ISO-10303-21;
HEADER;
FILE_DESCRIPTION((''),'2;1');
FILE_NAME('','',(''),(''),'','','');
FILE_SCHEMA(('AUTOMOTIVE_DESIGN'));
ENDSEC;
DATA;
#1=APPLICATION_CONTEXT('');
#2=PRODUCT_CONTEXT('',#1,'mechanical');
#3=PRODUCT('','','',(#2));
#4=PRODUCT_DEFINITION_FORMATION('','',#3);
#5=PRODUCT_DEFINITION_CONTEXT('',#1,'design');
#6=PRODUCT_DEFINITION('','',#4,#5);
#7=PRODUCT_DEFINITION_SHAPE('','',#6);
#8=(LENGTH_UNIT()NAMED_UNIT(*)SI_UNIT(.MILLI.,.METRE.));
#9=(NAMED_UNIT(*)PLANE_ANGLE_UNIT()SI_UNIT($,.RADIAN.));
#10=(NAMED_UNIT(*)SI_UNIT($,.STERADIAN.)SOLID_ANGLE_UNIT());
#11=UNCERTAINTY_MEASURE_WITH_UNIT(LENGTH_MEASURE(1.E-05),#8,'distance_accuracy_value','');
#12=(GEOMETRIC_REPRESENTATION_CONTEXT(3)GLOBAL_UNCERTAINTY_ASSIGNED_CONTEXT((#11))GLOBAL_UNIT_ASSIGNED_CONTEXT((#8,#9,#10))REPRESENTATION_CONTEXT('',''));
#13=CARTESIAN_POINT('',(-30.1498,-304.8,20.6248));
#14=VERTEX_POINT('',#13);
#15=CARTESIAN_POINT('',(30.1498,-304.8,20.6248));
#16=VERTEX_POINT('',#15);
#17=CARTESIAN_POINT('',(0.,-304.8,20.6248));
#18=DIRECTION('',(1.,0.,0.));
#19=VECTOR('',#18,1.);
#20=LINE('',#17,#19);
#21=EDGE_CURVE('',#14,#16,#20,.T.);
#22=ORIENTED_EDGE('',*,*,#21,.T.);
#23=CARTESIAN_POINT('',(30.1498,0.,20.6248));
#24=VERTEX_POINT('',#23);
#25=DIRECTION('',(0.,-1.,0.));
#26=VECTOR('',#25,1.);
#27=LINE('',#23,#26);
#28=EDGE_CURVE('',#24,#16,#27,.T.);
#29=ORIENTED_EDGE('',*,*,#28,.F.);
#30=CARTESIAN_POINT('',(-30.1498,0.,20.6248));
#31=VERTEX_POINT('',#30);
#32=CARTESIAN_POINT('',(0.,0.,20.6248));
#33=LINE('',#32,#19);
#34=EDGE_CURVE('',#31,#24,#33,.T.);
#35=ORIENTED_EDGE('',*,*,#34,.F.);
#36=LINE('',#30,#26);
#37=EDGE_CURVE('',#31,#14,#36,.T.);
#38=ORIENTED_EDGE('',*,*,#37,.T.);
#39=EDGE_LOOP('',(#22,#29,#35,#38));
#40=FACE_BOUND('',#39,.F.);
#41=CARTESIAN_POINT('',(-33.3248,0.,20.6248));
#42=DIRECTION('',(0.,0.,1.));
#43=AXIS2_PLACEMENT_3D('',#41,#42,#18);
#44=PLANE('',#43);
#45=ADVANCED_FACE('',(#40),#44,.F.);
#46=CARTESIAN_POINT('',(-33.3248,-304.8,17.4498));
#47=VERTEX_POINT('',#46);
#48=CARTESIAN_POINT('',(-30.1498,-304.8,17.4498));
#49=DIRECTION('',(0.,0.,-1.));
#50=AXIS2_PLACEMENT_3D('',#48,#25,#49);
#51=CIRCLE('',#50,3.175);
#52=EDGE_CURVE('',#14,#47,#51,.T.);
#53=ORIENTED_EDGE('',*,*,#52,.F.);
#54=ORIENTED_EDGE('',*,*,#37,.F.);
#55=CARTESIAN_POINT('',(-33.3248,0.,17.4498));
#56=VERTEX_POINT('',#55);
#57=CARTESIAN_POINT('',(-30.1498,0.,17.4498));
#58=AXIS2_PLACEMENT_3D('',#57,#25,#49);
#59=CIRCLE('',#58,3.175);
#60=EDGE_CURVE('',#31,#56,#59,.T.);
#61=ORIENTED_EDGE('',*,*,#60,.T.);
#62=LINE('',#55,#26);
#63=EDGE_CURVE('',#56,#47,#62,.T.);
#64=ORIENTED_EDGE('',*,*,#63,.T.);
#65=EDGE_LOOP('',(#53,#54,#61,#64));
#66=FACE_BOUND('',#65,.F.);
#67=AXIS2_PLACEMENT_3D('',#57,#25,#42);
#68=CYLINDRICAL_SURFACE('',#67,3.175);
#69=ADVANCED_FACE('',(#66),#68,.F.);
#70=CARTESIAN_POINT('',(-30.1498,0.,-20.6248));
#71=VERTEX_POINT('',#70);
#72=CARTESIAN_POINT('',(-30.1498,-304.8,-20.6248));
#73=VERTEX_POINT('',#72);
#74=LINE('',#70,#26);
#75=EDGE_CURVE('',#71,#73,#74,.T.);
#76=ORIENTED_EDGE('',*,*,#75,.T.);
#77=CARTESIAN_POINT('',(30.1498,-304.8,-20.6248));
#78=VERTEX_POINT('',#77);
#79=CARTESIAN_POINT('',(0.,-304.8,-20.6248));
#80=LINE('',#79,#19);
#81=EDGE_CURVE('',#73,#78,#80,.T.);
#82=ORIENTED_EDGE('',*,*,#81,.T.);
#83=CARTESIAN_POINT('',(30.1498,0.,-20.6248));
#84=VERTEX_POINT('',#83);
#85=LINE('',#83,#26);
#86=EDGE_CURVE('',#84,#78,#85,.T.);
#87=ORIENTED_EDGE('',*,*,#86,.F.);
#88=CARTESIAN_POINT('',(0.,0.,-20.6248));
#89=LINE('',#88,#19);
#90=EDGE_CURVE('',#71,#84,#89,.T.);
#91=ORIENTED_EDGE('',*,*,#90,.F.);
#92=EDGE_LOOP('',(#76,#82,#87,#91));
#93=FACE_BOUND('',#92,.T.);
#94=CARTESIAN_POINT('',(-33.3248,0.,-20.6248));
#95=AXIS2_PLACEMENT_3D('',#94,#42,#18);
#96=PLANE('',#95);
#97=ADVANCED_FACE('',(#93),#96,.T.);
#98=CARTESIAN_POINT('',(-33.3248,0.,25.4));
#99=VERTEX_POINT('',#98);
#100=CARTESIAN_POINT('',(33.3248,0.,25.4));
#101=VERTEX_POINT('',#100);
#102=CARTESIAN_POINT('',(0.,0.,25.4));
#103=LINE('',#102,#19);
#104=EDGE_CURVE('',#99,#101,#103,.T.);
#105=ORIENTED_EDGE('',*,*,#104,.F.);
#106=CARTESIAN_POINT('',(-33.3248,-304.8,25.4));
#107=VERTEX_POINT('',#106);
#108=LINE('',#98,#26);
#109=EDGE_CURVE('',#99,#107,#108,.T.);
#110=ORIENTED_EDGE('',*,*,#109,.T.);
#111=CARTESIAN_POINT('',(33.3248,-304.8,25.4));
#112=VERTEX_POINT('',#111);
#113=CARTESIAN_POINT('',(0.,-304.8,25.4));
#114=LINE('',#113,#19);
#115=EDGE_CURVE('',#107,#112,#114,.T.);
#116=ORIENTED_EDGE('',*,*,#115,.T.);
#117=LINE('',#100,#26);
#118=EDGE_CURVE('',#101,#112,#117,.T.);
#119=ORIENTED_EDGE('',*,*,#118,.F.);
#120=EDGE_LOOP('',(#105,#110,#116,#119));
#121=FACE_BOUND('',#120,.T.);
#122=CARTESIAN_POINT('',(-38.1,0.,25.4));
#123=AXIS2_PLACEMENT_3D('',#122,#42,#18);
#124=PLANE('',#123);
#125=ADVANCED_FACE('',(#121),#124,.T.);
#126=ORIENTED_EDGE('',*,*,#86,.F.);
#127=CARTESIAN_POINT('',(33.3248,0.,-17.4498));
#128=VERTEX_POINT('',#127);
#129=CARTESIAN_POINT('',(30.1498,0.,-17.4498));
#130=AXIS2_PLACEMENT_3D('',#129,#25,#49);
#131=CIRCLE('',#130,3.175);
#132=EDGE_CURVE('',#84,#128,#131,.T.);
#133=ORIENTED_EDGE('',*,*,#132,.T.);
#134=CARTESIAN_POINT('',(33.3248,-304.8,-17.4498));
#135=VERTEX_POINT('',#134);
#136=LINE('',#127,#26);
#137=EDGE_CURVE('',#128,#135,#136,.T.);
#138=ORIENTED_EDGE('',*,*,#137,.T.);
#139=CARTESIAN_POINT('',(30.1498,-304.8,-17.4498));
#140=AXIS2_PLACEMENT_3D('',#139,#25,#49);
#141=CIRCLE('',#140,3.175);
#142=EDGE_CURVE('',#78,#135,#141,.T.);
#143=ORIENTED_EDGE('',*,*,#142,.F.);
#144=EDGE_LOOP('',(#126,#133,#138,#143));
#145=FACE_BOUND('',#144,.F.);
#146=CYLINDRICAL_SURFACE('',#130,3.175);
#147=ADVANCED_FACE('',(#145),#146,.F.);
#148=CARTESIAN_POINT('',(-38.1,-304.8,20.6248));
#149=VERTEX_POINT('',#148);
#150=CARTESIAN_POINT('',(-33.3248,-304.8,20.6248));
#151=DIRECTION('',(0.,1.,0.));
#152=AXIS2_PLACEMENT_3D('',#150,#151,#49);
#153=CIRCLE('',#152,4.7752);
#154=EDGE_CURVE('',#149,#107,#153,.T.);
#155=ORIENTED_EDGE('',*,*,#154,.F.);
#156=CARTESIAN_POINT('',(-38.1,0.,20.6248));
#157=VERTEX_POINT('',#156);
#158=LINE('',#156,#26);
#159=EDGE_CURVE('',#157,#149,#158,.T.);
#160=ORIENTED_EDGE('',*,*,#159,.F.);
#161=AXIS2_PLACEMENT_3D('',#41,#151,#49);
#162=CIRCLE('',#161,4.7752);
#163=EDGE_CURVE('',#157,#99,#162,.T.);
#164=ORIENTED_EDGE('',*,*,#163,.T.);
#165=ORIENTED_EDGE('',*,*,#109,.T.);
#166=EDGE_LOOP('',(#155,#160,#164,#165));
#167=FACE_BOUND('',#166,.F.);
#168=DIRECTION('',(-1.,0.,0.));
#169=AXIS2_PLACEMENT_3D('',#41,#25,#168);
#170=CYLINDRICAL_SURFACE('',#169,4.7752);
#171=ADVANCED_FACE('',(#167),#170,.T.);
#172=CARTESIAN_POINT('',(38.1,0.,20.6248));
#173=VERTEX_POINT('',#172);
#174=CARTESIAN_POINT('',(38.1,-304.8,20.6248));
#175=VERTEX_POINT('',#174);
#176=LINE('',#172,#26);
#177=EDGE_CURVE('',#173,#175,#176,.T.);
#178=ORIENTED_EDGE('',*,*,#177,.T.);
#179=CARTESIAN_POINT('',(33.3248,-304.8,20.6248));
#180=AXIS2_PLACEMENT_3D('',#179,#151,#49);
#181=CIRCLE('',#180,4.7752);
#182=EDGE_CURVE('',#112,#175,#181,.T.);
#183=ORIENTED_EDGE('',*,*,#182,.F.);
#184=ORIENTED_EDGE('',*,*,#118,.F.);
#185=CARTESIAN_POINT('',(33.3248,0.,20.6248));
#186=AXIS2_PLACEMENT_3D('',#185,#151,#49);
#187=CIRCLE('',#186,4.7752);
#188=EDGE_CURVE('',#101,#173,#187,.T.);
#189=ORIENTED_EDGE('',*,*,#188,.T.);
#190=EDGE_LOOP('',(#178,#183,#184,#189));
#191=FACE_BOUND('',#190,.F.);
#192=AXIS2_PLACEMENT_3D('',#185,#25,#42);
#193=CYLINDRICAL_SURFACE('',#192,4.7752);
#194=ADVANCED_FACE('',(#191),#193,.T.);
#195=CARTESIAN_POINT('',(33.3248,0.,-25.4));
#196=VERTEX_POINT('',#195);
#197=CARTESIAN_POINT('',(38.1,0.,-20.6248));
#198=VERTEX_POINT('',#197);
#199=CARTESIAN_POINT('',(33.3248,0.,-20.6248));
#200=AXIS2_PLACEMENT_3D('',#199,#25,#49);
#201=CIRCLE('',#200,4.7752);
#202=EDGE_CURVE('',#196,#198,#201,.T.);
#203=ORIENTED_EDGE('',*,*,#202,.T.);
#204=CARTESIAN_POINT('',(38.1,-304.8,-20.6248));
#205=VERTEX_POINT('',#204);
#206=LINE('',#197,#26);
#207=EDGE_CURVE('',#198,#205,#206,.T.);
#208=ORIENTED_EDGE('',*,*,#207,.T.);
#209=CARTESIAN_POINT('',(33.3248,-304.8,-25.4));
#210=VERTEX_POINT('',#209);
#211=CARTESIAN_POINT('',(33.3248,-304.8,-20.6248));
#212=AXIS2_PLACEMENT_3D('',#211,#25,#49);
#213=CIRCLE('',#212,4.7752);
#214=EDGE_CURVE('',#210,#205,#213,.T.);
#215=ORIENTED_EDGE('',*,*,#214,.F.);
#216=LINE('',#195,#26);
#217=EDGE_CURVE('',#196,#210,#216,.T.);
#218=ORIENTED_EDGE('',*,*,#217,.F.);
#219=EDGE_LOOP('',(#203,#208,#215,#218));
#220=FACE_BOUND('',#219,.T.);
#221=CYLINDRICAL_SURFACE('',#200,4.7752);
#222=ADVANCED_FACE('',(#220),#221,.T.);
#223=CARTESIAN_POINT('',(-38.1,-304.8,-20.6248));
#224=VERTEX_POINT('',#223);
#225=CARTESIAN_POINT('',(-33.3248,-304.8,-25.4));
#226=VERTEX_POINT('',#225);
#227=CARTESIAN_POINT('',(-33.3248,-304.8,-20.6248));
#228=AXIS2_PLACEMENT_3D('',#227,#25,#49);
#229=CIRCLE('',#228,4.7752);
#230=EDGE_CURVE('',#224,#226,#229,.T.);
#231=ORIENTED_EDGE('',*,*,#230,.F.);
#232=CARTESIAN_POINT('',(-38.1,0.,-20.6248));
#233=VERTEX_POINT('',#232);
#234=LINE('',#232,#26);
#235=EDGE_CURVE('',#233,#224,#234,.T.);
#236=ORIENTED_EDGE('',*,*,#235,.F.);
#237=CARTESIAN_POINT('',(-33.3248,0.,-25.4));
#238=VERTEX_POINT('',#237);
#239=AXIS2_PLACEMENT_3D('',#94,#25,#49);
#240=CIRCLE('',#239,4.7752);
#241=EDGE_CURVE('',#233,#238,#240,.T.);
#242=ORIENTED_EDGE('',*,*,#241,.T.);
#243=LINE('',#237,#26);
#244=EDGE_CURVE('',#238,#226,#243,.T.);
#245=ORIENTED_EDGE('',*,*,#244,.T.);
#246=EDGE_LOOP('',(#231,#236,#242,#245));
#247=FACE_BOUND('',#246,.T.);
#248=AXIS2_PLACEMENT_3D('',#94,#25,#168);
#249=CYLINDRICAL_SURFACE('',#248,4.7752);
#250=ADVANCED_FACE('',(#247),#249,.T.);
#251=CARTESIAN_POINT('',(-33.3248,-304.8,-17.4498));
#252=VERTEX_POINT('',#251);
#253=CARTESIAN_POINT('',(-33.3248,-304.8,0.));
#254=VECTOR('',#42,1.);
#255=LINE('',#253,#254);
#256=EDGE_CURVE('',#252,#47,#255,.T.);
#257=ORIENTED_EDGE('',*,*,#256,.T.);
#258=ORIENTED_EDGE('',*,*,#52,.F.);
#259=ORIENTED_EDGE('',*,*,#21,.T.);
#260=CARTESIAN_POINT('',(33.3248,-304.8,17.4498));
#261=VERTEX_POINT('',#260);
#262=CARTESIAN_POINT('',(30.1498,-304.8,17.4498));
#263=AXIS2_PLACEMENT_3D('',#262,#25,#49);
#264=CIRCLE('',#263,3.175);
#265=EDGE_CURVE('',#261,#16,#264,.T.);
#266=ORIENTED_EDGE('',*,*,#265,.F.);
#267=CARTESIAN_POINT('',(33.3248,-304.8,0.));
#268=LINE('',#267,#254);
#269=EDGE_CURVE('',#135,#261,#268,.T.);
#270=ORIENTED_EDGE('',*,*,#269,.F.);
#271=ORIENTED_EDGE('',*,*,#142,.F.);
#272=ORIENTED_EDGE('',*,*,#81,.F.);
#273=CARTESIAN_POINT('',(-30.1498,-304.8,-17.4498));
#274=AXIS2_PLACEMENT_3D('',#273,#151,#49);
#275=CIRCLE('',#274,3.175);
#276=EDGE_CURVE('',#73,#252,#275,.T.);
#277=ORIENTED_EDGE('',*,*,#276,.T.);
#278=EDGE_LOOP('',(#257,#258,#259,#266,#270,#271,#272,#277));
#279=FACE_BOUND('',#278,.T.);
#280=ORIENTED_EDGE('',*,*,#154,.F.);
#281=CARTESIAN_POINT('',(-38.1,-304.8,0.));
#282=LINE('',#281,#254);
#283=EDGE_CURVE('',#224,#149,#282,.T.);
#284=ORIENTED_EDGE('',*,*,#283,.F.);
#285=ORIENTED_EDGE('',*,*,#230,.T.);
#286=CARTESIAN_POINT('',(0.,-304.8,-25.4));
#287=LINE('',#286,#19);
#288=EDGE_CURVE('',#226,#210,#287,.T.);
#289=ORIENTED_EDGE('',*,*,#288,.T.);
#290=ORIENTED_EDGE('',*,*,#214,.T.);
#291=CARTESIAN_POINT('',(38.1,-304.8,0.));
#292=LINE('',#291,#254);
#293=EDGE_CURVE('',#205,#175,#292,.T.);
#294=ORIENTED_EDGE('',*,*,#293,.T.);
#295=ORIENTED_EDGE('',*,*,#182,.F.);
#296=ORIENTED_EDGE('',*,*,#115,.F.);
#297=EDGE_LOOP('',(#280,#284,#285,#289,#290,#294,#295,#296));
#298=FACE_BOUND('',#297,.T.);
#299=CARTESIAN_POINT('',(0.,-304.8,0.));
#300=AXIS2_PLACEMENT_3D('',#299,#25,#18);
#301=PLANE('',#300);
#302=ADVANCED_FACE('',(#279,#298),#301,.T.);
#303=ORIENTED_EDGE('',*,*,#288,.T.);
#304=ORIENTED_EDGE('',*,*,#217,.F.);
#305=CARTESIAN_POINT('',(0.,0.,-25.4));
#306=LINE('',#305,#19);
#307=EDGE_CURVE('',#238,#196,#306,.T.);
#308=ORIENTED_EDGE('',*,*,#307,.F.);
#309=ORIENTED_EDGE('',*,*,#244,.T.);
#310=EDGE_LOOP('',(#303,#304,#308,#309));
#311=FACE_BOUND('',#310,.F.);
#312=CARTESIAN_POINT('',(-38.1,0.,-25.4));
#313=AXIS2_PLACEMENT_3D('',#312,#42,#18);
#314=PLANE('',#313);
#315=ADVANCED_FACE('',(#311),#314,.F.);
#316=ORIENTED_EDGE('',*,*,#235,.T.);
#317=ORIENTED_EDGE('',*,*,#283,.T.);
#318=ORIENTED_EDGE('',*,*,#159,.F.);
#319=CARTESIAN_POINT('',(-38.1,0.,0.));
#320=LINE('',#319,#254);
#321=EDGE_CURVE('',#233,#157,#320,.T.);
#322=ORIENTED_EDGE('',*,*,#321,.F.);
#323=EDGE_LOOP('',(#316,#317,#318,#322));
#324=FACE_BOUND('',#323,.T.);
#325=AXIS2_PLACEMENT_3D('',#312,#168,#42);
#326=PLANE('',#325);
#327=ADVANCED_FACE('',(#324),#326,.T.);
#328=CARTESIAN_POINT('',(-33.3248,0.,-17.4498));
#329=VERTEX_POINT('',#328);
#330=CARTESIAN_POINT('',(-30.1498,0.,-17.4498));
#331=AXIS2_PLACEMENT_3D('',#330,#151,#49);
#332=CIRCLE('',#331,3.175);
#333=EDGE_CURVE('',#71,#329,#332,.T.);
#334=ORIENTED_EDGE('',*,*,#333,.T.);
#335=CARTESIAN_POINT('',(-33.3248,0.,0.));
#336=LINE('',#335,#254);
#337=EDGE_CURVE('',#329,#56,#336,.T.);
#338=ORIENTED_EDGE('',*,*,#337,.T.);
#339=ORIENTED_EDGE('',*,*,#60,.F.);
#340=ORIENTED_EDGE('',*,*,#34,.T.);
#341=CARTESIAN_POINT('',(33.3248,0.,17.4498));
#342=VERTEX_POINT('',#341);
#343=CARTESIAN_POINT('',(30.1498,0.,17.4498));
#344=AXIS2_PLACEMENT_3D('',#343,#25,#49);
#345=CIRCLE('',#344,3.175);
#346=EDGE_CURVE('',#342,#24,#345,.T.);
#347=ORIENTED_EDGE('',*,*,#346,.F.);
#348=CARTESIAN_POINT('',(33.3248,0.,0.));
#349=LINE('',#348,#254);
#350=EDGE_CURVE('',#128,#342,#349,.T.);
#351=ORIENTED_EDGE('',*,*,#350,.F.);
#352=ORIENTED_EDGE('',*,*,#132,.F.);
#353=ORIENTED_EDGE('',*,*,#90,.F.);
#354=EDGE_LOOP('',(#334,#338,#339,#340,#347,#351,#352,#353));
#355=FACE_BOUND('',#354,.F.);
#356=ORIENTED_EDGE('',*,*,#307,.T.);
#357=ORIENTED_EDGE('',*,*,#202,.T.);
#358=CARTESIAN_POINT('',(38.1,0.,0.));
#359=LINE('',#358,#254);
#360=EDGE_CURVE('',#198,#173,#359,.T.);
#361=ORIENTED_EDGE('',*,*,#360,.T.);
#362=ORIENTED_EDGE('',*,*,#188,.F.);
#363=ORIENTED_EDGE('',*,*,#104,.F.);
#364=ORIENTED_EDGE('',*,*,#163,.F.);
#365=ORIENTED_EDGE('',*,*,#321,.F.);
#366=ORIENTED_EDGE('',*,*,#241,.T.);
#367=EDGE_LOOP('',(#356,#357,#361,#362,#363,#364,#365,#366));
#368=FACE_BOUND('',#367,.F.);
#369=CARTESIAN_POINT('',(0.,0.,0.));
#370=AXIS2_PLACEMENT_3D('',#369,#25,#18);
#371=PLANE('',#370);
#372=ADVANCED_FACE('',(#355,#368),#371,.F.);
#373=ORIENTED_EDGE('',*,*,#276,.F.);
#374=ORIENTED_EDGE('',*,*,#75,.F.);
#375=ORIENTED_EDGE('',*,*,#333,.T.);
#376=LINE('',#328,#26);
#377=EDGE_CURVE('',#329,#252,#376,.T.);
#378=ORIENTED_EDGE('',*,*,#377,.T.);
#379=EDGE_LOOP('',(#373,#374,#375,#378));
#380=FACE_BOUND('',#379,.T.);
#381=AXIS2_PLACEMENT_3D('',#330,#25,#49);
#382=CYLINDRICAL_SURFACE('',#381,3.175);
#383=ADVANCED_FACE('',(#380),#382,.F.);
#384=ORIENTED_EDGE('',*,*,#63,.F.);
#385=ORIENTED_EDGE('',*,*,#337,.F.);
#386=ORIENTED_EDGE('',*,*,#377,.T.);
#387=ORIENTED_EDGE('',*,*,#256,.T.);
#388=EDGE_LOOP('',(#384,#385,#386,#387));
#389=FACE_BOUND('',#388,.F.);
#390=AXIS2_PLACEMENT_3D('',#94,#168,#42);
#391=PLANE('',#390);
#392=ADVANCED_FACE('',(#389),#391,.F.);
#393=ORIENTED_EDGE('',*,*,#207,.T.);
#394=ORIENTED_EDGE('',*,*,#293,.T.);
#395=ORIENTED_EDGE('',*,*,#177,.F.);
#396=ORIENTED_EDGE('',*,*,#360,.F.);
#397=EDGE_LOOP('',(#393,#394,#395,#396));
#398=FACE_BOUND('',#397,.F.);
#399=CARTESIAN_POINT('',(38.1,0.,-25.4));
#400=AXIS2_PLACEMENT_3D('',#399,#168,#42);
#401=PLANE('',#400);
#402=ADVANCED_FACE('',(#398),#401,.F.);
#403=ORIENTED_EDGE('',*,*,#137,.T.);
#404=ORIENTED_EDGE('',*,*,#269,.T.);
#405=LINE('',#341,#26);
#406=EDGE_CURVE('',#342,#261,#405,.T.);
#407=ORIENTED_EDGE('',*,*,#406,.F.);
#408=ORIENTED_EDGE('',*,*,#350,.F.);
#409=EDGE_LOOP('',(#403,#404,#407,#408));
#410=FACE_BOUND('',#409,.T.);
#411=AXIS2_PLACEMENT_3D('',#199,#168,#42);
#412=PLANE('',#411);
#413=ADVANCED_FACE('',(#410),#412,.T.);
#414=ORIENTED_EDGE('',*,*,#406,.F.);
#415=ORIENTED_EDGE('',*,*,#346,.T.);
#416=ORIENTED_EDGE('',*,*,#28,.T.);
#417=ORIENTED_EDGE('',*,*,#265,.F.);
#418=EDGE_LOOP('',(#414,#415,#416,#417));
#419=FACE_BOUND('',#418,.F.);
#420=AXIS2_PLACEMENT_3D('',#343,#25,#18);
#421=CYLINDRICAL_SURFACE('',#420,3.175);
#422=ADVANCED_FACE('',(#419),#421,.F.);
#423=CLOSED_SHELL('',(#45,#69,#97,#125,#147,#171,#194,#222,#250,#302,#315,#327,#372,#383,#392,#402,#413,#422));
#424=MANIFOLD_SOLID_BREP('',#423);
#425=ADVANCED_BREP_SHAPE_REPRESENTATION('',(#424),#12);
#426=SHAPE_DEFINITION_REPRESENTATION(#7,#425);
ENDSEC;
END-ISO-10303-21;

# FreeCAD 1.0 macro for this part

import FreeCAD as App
import Part
import Sketcher

V = App.Vector
Q = App.Units.Quantity


def edges_at(feature, points):
    """Names of the edges that pass closest to the given points."""
    edges = feature.Shape.Edges
    near = lambda p: min(range(len(edges)), key=lambda i: edges[i].distToShape(Part.Vertex(*p))[0])
    return sorted({f"Edge{near(p) + 1}" for p in points})

doc = App.newDocument("Part")
params = doc.addObject("Spreadsheet::Sheet", "Params")
for row, (alias, value) in enumerate([
    ("sketch1_width", "3 in"),
    ("sketch1_height", "2 in"),
    ("sketch1_width2", "2.624 in"),
    ("sketch1_height2", "1.624 in"),
    ("pad1_length", "12 in"),
    ("fillet_radius", "0.188 in"),
    ("fillet2_radius", "0.125 in"),
], start=1):
    params.set(f"A{row}", alias)
    params.set(f"B{row}", "=" + value)
    params.setAlias(f"B{row}", alias)

body = doc.addObject("PartDesign::Body", "Body")

# Sketch on XZ plane
sketch1 = body.newObject("Sketcher::SketchObject", "Sketch")
sketch1.AttachmentSupport = (doc.getObject("XZ_Plane"), [""])
sketch1.MapMode = "FlatFace"
sketch1.addGeometry(Part.LineSegment(V(-38, 25, 0), V(-38, -25, 0)), False)
sketch1.addGeometry(Part.LineSegment(V(-38, -25, 0), V(38, -25, 0)), False)
sketch1.addGeometry(Part.LineSegment(V(38, -25, 0), V(38, 25, 0)), False)
sketch1.addGeometry(Part.LineSegment(V(38, 25, 0), V(-38, 25, 0)), False)
sketch1.addGeometry(Part.LineSegment(V(33, -21, 0), V(-33, -21, 0)), False)
sketch1.addGeometry(Part.LineSegment(V(-33, -21, 0), V(-33, 21, 0)), False)
sketch1.addGeometry(Part.LineSegment(V(-33, 21, 0), V(33, 21, 0)), False)
sketch1.addGeometry(Part.LineSegment(V(33, 21, 0), V(33, -21, 0)), False)
sketch1.addConstraint(Sketcher.Constraint("Coincident", 0, 2, 1, 1))
sketch1.addConstraint(Sketcher.Constraint("Coincident", 1, 2, 2, 1))
sketch1.addConstraint(Sketcher.Constraint("Coincident", 2, 2, 3, 1))
sketch1.addConstraint(Sketcher.Constraint("Coincident", 3, 2, 0, 1))
sketch1.addConstraint(Sketcher.Constraint("Coincident", 4, 2, 5, 1))
sketch1.addConstraint(Sketcher.Constraint("Coincident", 5, 2, 6, 1))
sketch1.addConstraint(Sketcher.Constraint("Coincident", 6, 2, 7, 1))
sketch1.addConstraint(Sketcher.Constraint("Coincident", 7, 2, 4, 1))
sketch1.addConstraint(Sketcher.Constraint("Vertical", 0))
sketch1.addConstraint(Sketcher.Constraint("Horizontal", 1))
sketch1.addConstraint(Sketcher.Constraint("Vertical", 2))
sketch1.addConstraint(Sketcher.Constraint("Horizontal", 3))
sketch1.addConstraint(Sketcher.Constraint("Horizontal", 4))
sketch1.addConstraint(Sketcher.Constraint("Vertical", 5))
sketch1.addConstraint(Sketcher.Constraint("Horizontal", 6))
sketch1.addConstraint(Sketcher.Constraint("Vertical", 7))
sketch1.addConstraint(Sketcher.Constraint("Symmetric", 0, 2, 2, 2, -1, 1))
sketch1.addConstraint(Sketcher.Constraint("Symmetric", 4, 2, 6, 2, -1, 1))
sketch1.addConstraint(Sketcher.Constraint("DistanceX", 1, 1, 1, 2, Q("3 in")))
sketch1.addConstraint(Sketcher.Constraint("DistanceY", 0, 2, 0, 1, Q("2 in")))
sketch1.addConstraint(Sketcher.Constraint("DistanceX", 4, 2, 4, 1, Q("2.624 in")))
sketch1.addConstraint(Sketcher.Constraint("DistanceY", 5, 1, 5, 2, Q("1.624 in")))
sketch1.setExpression("Constraints[18]", "Params.sketch1_width")
sketch1.setExpression("Constraints[19]", "Params.sketch1_height")
sketch1.setExpression("Constraints[20]", "Params.sketch1_width2")
sketch1.setExpression("Constraints[21]", "Params.sketch1_height2")
pad1 = body.newObject("PartDesign::Pad", "Pad")
pad1.Profile = sketch1
pad1.setExpression("Length", "Params.pad1_length")
doc.recompute()

fillet = body.newObject("PartDesign::Fillet", "Fillet")
fillet.Base = (pad1, edges_at(pad1, [
    (38.1, -152.4, -25.4),
    (-38.1, -152.4, -25.4),
    (-38.1, -152.4, 25.4),
    (38.1, -152.4, 25.4),
]))
fillet.setExpression("Radius", "Params.fillet_radius")
doc.recompute()

fillet2 = body.newObject("PartDesign::Fillet", "Fillet001")
fillet2.Base = (fillet, edges_at(fillet, [
    (-33.325, -152.4, 20.625),
    (33.325, -152.4, 20.625),
    (-33.325, -152.4, -20.625),
    (33.325, -152.4, -20.625),
]))
fillet2.setExpression("Radius", "Params.fillet2_radius")

doc.recompute()
